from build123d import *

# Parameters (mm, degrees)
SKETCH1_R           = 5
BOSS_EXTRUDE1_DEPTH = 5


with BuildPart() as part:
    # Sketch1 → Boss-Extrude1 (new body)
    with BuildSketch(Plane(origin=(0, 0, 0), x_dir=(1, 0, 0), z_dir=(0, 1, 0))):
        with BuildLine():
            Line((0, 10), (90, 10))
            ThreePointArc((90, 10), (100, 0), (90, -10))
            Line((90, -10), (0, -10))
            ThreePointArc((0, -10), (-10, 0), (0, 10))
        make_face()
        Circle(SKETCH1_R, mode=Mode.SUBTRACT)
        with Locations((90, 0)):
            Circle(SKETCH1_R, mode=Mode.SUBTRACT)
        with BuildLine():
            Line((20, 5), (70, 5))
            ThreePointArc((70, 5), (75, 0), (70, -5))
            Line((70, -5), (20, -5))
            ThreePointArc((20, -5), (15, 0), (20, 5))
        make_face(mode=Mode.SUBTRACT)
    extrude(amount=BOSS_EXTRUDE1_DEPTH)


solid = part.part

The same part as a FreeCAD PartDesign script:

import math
import FreeCAD as App
import Part
import Sketcher
from FreeCAD import Vector

doc = App.newDocument("Part")
body = doc.addObject("PartDesign::Body", "Body")

# Sketch on XZ plane
sketch1 = doc.addObject("Sketcher::SketchObject", "Sketch")
body.addObject(sketch1)
sketch1.AttachmentSupport = (doc.XZ_Plane, [""])
sketch1.MapMode = "FlatFace"
sketch1.addGeometry([
    Part.LineSegment(Vector(90, -10, 0), Vector(0, -10, 0)),  # 0
    Part.ArcOfCircle(Part.Circle(Vector(0, 0, 0), Vector(0, 0, 1), 10), math.radians(90), math.radians(270)),  # 1
    Part.LineSegment(Vector(0, 10, 0), Vector(90, 10, 0)),  # 2
    Part.ArcOfCircle(Part.Circle(Vector(90, 0, 0), Vector(0, 0, 1), 10), math.radians(-90), math.radians(90)),  # 3
    Part.Circle(Vector(90, 0, 0), Vector(0, 0, 1), 5),  # 4
    Part.LineSegment(Vector(20, -5, 0), Vector(70, -5, 0)),  # 5
    Part.ArcOfCircle(Part.Circle(Vector(70, 0, 0), Vector(0, 0, 1), 5), math.radians(-90), math.radians(90)),  # 6
    Part.LineSegment(Vector(70, 5, 0), Vector(20, 5, 0)),  # 7
    Part.ArcOfCircle(Part.Circle(Vector(20, 0, 0), Vector(0, 0, 1), 5), math.radians(90), math.radians(270)),  # 8
    Part.Circle(Vector(0, 0, 0), Vector(0, 0, 1), 5),  # 9
], False)
sketch1.addConstraint([
    Sketcher.Constraint("Tangent", 0, 2, 1, 2),
    Sketcher.Constraint("Tangent", 1, 1, 2, 1),
    Sketcher.Constraint("Tangent", 2, 2, 3, 2),
    Sketcher.Constraint("Tangent", 3, 1, 0, 1),
    Sketcher.Constraint("Tangent", 5, 2, 6, 1),
    Sketcher.Constraint("Tangent", 6, 2, 7, 1),
    Sketcher.Constraint("Tangent", 7, 2, 8, 1),
    Sketcher.Constraint("Tangent", 8, 2, 5, 1),
    Sketcher.Constraint("Horizontal", 0),
    Sketcher.Constraint("Horizontal", 2),
    Sketcher.Constraint("Horizontal", 5),
    Sketcher.Constraint("Horizontal", 7),
    Sketcher.Constraint("Coincident", 1, 3, -1, 1),
    Sketcher.Constraint("Coincident", 9, 3, -1, 1),
    Sketcher.Constraint("Coincident", 4, 3, 3, 3),
    Sketcher.Constraint("Equal", 4, 6),
    Sketcher.Constraint("Equal", 8, 9),
    Sketcher.Constraint("PointOnObject", 6, 3, -1),
    Sketcher.Constraint("Diameter", 4, 10.0),
    Sketcher.Constraint("Radius", 1, 10.0),
    Sketcher.Constraint("DistanceX", 0, 2, 0, 1, 90.0),
    Sketcher.Constraint("DistanceX", 5, 1, 5, 2, 50.0),
    Sketcher.Constraint("DistanceX", -1, 1, 6, 3, 70.0),
])
pad1 = doc.addObject("PartDesign::Pad", "Pad")
body.addObject(pad1)
pad1.Profile = sketch1
pad1.Length = 5
pad1.Reversed = True

doc.recompute()
